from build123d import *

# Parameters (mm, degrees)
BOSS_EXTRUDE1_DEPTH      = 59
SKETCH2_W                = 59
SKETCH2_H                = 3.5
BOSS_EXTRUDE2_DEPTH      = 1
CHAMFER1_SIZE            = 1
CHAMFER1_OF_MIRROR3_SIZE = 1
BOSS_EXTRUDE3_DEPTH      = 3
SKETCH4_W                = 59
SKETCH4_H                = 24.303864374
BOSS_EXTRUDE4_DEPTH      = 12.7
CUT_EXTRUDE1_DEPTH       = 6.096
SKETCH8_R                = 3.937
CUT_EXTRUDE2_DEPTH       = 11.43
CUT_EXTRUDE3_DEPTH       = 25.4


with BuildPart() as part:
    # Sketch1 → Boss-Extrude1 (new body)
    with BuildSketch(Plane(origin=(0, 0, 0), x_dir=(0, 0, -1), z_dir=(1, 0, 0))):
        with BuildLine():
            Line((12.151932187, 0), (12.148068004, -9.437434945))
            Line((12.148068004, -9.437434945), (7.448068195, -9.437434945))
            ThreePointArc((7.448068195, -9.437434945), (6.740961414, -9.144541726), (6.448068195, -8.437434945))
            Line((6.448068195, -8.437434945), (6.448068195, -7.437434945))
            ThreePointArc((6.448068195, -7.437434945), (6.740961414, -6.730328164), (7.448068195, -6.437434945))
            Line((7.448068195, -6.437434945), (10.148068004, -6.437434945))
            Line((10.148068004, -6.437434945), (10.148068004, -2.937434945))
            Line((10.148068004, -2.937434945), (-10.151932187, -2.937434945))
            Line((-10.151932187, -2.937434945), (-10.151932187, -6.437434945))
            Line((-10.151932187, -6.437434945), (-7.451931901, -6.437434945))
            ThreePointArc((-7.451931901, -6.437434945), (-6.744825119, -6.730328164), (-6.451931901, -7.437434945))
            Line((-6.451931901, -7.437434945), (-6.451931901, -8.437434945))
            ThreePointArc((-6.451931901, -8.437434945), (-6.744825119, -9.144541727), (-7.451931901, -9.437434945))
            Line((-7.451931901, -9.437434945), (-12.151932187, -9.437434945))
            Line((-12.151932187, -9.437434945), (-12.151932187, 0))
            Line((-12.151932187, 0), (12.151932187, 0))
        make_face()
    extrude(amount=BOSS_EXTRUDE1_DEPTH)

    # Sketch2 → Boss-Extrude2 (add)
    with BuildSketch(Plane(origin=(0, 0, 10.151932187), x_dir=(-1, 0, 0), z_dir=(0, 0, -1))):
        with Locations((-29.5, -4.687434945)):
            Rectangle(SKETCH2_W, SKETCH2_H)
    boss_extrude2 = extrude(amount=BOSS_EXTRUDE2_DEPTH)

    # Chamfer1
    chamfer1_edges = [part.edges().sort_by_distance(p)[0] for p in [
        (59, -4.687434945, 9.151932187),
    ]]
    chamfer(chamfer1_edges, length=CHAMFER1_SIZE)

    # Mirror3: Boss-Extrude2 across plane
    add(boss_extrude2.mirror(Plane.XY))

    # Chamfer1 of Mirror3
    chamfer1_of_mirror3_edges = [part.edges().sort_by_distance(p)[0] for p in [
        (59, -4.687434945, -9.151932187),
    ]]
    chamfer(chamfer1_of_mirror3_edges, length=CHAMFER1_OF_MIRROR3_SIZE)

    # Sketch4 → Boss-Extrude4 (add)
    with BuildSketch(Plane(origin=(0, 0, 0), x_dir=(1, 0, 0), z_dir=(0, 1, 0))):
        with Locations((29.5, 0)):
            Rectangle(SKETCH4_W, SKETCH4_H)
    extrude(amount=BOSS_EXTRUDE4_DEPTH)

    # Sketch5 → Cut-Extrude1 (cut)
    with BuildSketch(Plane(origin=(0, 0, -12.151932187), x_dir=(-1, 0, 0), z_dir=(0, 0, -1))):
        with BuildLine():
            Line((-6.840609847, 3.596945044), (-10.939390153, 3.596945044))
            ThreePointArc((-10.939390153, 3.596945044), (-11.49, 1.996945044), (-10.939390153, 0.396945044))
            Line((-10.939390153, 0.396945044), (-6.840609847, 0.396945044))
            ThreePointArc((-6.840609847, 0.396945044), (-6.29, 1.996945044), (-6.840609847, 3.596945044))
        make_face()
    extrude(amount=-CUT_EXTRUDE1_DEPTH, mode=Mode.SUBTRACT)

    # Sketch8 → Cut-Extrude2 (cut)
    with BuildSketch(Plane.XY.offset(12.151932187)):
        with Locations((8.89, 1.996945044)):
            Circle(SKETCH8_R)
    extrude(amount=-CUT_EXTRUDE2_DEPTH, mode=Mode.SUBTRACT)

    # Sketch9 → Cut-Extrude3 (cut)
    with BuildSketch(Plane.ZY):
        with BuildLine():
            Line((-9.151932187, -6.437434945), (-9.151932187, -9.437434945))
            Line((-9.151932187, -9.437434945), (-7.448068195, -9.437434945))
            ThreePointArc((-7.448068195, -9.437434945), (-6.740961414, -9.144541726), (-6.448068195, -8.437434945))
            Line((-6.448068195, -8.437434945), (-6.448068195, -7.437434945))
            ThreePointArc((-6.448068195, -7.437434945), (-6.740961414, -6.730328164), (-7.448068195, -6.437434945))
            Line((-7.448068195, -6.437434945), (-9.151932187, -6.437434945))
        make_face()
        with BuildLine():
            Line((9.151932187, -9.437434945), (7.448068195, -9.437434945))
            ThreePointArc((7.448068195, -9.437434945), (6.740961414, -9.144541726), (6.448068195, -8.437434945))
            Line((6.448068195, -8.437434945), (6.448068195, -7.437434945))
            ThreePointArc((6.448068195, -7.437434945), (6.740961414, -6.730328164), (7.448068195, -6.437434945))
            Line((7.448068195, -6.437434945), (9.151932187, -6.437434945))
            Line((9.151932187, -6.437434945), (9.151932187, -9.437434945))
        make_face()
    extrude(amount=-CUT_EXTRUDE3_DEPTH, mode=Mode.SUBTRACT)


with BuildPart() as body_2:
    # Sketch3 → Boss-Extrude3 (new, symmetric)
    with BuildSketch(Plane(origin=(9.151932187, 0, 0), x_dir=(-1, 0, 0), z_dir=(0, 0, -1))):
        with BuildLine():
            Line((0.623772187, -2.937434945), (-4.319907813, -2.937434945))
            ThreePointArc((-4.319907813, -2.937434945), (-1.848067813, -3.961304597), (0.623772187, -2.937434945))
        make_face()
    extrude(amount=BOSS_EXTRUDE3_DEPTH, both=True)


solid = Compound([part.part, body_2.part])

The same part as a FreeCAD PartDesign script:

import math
import FreeCAD as App
import Part
import Sketcher

V = App.Vector


def edges_at(feature, points):
    """Names of the edges that pass closest to the given points."""
    edges = feature.Shape.Edges
    near = lambda p: min(range(len(edges)), key=lambda i: edges[i].distToShape(Part.Vertex(*p))[0])
    return sorted({f"Edge{near(p) + 1}" for p in points})

doc = App.newDocument("Part")
params = doc.addObject("Spreadsheet::Sheet", "Params")
for row, (alias, value) in enumerate([
    ("sketch1_radius", "1 mm"),
    ("sketch1_width", "1 mm"),
    ("sketch1_width2", "3.5 mm"),
    ("sketch1_height", "4.7 mm"),
    ("sketch1_height2", "2.7 mm"),
    ("pad1_length", "59 mm"),
    ("sketch2_width", "59 mm"),
    ("sketch2_height", "3.5 mm"),
    ("pad2_length", "1 mm"),
    ("chamfer_size", "1 mm"),
    ("chamfer2_size", "1 mm"),
    ("sketch3_width", "59 mm"),
    ("pad3_length", "12.7 mm"),
    ("sketch4_radius", "2.6 mm"),
    ("pocket1_length", "6.096 mm"),
    ("pocket2_length", "11.43 mm"),
    ("sketch6_radius", "1 mm"),
    ("sketch6_width", "3 mm"),
    ("pocket3_length", "25.4 mm"),
    ("pad4_length", "6 mm"),
], start=1):
    params.set(f"A{row}", alias)
    params.set(f"B{row}", "=" + value)
    params.setAlias(f"B{row}", alias)

body = doc.addObject("PartDesign::Body", "Body")

sketch1 = doc.addObject("Sketcher::SketchObject", "Sketch")
body.addObject(sketch1)
sketch1.AttachmentSupport = (doc.YZ_Plane, [""])
sketch1.MapMode = "FlatFace"
sketch1.addGeometry([
    Part.LineSegment(V(-9.437435, -12.148068, 0), V(0, -12.151932, 0)),
    Part.LineSegment(V(0, -12.151932, 0), V(0, 12.151932, 0)),
    Part.LineSegment(V(0, 12.151932, 0), V(-9.437435, 12.151932, 0)),
    Part.LineSegment(V(-9.437435, 12.151932, 0), V(-9.437435, 7.451932, 0)),
    Part.ArcOfCircle(Part.Circle(V(-8.437435, 7.451932, 0), V(0, 0, 1), 1), math.radians(180), math.radians(270)),
    Part.LineSegment(V(-8.437435, 6.451932, 0), V(-7.437435, 6.451932, 0)),
    Part.ArcOfCircle(Part.Circle(V(-7.437435, 7.451932, 0), V(0, 0, 1), 1), math.radians(-90), math.radians(0)),
    Part.LineSegment(V(-6.437435, 7.451932, 0), V(-6.437435, 10.151932, 0)),
    Part.LineSegment(V(-6.437435, 10.151932, 0), V(-2.937435, 10.151932, 0)),
    Part.LineSegment(V(-2.937435, 10.151932, 0), V(-2.937435, -10.148068, 0)),
    Part.LineSegment(V(-2.937435, -10.148068, 0), V(-6.437435, -10.148068, 0)),
    Part.LineSegment(V(-6.437435, -10.148068, 0), V(-6.437435, -7.448068, 0)),
    Part.ArcOfCircle(Part.Circle(V(-7.437435, -7.448068, 0), V(0, 0, 1), 1), math.radians(0), math.radians(90)),
    Part.LineSegment(V(-7.437435, -6.448068, 0), V(-8.437435, -6.448068, 0)),
    Part.ArcOfCircle(Part.Circle(V(-8.437435, -7.448068, 0), V(0, 0, 1), 1), math.radians(90), math.radians(180)),
    Part.LineSegment(V(-9.437435, -7.448068, 0), V(-9.437435, -12.148068, 0)),
], False)
sketch1.addConstraint([
    Sketcher.Constraint("Coincident", 0, 2, 1, 1),
    Sketcher.Constraint("Coincident", 1, 2, 2, 1),
    Sketcher.Constraint("Coincident", 2, 2, 3, 1),
    Sketcher.Constraint("Tangent", 3, 2, 4, 1),
    Sketcher.Constraint("Tangent", 4, 2, 5, 1),
    Sketcher.Constraint("Tangent", 5, 2, 6, 1),
    Sketcher.Constraint("Tangent", 6, 2, 7, 1),
    Sketcher.Constraint("Coincident", 7, 2, 8, 1),
    Sketcher.Constraint("Coincident", 8, 2, 9, 1),
    Sketcher.Constraint("Coincident", 9, 2, 10, 1),
    Sketcher.Constraint("Coincident", 10, 2, 11, 1),
    Sketcher.Constraint("Tangent", 11, 2, 12, 1),
    Sketcher.Constraint("Tangent", 12, 2, 13, 1),
    Sketcher.Constraint("Tangent", 13, 2, 14, 1),
    Sketcher.Constraint("Tangent", 14, 2, 15, 1),
    Sketcher.Constraint("Coincident", 15, 2, 0, 1),
    Sketcher.Constraint("Vertical", 1),
    Sketcher.Constraint("Horizontal", 2),
    Sketcher.Constraint("Vertical", 3),
    Sketcher.Constraint("Horizontal", 5),
    Sketcher.Constraint("Vertical", 7),
    Sketcher.Constraint("Horizontal", 8),
    Sketcher.Constraint("Vertical", 9),
    Sketcher.Constraint("Horizontal", 10),
    Sketcher.Constraint("Vertical", 11),
    Sketcher.Constraint("Horizontal", 13),
    Sketcher.Constraint("Vertical", 15),
    Sketcher.Constraint("Equal", 4, 6),
    Sketcher.Constraint("Equal", 6, 12),
    Sketcher.Constraint("Equal", 12, 14),
    Sketcher.Constraint("Symmetric", 0, 2, 1, 2, -1, 1),
    Sketcher.Constraint("Vertical", 6, 3, 12, 3),
    Sketcher.Constraint("Vertical", 4, 3, 14, 3),
    Sketcher.Constraint("Equal", 7, 11),
    Sketcher.Constraint("Equal", 3, 15),
    Sketcher.Constraint("Radius", 4, 1.0),
    Sketcher.Constraint("DistanceX", 5, 1, 5, 2, 1.0),
    Sketcher.Constraint("DistanceX", 8, 1, 8, 2, 3.5),
    Sketcher.Constraint("DistanceY", 3, 2, 3, 1, 4.7),
    Sketcher.Constraint("DistanceY", 7, 1, 7, 2, 2.7),
    Sketcher.Constraint("DistanceY", 9, 2, 9, 1, 20.3),
    Sketcher.Constraint("DistanceX", 2, 2, 2, 1, 9.437435),
    Sketcher.Constraint("DistanceY", 1, 1, 1, 2, 24.303864),
])
sketch1.setExpression("Constraints[35]", "Params.sketch1_radius")
sketch1.setExpression("Constraints[36]", "Params.sketch1_width")
sketch1.setExpression("Constraints[37]", "Params.sketch1_width2")
sketch1.setExpression("Constraints[38]", "Params.sketch1_height")
sketch1.setExpression("Constraints[39]", "Params.sketch1_height2")
pad1 = doc.addObject("PartDesign::Pad", "Pad")
body.addObject(pad1)
pad1.Profile = sketch1
pad1.setExpression("Length", "Params.pad1_length")

sketch2 = doc.addObject("Sketcher::SketchObject", "Sketch001")
body.addObject(sketch2)
sketch2.AttachmentSupport = (doc.XY_Plane, [""])
sketch2.MapMode = "FlatFace"
sketch2.AttachmentOffset = App.Placement(V(0, 0, 10.151932), App.Rotation())
sketch2.addGeometry([
    Part.LineSegment(V(59, -2.937435, 0), V(59, -6.437435, 0)),
    Part.LineSegment(V(59, -6.437435, 0), V(0, -6.437435, 0)),
    Part.LineSegment(V(0, -6.437435, 0), V(0, -2.937435, 0)),
    Part.LineSegment(V(0, -2.937435, 0), V(59, -2.937435, 0)),
], False)
sketch2.addConstraint([
    Sketcher.Constraint("Coincident", 0, 2, 1, 1),
    Sketcher.Constraint("Coincident", 1, 2, 2, 1),
    Sketcher.Constraint("Coincident", 2, 2, 3, 1),
    Sketcher.Constraint("Coincident", 3, 2, 0, 1),
    Sketcher.Constraint("Vertical", 0),
    Sketcher.Constraint("Horizontal", 1),
    Sketcher.Constraint("Vertical", 2),
    Sketcher.Constraint("Horizontal", 3),
    Sketcher.Constraint("PointOnObject", 1, 2, -2),
    Sketcher.Constraint("DistanceX", 1, 2, 1, 1, 59.0),
    Sketcher.Constraint("DistanceY", 0, 2, 0, 1, 3.5),
    Sketcher.Constraint("DistanceY", 0, 2, -1, 1, 6.437435),
])
sketch2.setExpression("Constraints[9]", "Params.sketch2_width")
sketch2.setExpression("Constraints[10]", "Params.sketch2_height")
pad2 = doc.addObject("PartDesign::Pad", "Pad001")
body.addObject(pad2)
pad2.Profile = sketch2
pad2.setExpression("Length", "Params.pad2_length")
pad2.Reversed = True
doc.recompute()

chamfer = doc.addObject("PartDesign::Chamfer", "Chamfer")
body.addObject(chamfer)
chamfer.Base = (pad2, edges_at(pad2, [(59, -4.687, 9.152)]))
chamfer.setExpression("Size", "Params.chamfer_size")
doc.recompute()

mirrored = doc.addObject("PartDesign::Mirrored", "Mirrored")
body.addObject(mirrored)
mirrored.Originals = [pad2]
mirrored.MirrorPlane = (doc.XY_Plane, [""])
body.Tip = mirrored
doc.recompute()

chamfer2 = doc.addObject("PartDesign::Chamfer", "Chamfer001")
body.addObject(chamfer2)
chamfer2.Base = (mirrored, edges_at(mirrored, [(59, -4.687, -9.152)]))
chamfer2.setExpression("Size", "Params.chamfer2_size")

sketch3 = doc.addObject("Sketcher::SketchObject", "Sketch002")
body.addObject(sketch3)
sketch3.AttachmentSupport = (doc.XZ_Plane, [""])
sketch3.MapMode = "FlatFace"
sketch3.addGeometry([
    Part.LineSegment(V(0, -12.151932, 0), V(0, 12.151932, 0)),
    Part.LineSegment(V(0, 12.151932, 0), V(59, 12.151932, 0)),
    Part.LineSegment(V(59, 12.151932, 0), V(59, -12.151932, 0)),
    Part.LineSegment(V(59, -12.151932, 0), V(0, -12.151932, 0)),
], False)
sketch3.addConstraint([
    Sketcher.Constraint("Coincident", 0, 2, 1, 1),
    Sketcher.Constraint("Coincident", 1, 2, 2, 1),
    Sketcher.Constraint("Coincident", 2, 2, 3, 1),
    Sketcher.Constraint("Coincident", 3, 2, 0, 1),
    Sketcher.Constraint("Vertical", 0),
    Sketcher.Constraint("Horizontal", 1),
    Sketcher.Constraint("Vertical", 2),
    Sketcher.Constraint("Horizontal", 3),
    Sketcher.Constraint("Symmetric", 0, 2, 3, 2, -1, 1),
    Sketcher.Constraint("DistanceX", 1, 1, 1, 2, 59.0),
    Sketcher.Constraint("DistanceY", 0, 1, 0, 2, 24.303864),
])
sketch3.setExpression("Constraints[9]", "Params.sketch3_width")
pad3 = doc.addObject("PartDesign::Pad", "Pad002")
body.addObject(pad3)
pad3.Profile = sketch3
pad3.setExpression("Length", "Params.pad3_length")
pad3.Reversed = True

sketch4 = doc.addObject("Sketcher::SketchObject", "Sketch003")
body.addObject(sketch4)
sketch4.AttachmentSupport = (doc.XY_Plane, [""])
sketch4.MapMode = "FlatFace"
sketch4.AttachmentOffset = App.Placement(V(0, 0, -12.151932), App.Rotation())
sketch4.addGeometry([
    Part.LineSegment(V(6.84061, 3.596945, 0), V(10.93939, 3.596945, 0)),
    Part.ArcOfCircle(Part.Circle(V(8.89, 1.996945, 0), V(0, 0, 1), 2.6), math.radians(-37.979872), math.radians(37.979872)),
    Part.LineSegment(V(10.93939, 0.396945, 0), V(6.84061, 0.396945, 0)),
    Part.ArcOfCircle(Part.Circle(V(8.89, 1.996945, 0), V(0, 0, 1), 2.6), math.radians(142.020128), math.radians(217.979872)),
], False)
sketch4.addConstraint([
    Sketcher.Constraint("Coincident", 0, 2, 1, 2),
    Sketcher.Constraint("Coincident", 1, 1, 2, 1),
    Sketcher.Constraint("Coincident", 2, 2, 3, 2),
    Sketcher.Constraint("Coincident", 3, 1, 0, 1),
    Sketcher.Constraint("Horizontal", 0),
    Sketcher.Constraint("Horizontal", 2),
    Sketcher.Constraint("Coincident", 3, 3, 1, 3),
    Sketcher.Constraint("Equal", 1, 3),
    Sketcher.Constraint("Vertical", 0, 2, 1, 1),
    Sketcher.Constraint("Radius", 1, 2.6),
    Sketcher.Constraint("DistanceY", 1, 3, 0, 2, 1.6),
    Sketcher.Constraint("DistanceX", -1, 1, 1, 3, 8.89),
    Sketcher.Constraint("DistanceY", -1, 1, 1, 3, 1.996945),
])
sketch4.setExpression("Constraints[9]", "Params.sketch4_radius")
pocket1 = doc.addObject("PartDesign::Pocket", "Pocket")
body.addObject(pocket1)
pocket1.Profile = sketch4
pocket1.setExpression("Length", "Params.pocket1_length")
pocket1.Reversed = True

sketch5 = doc.addObject("Sketcher::SketchObject", "Sketch004")
body.addObject(sketch5)
sketch5.AttachmentSupport = (doc.XY_Plane, [""])
sketch5.MapMode = "FlatFace"
sketch5.AttachmentOffset = App.Placement(V(0, 0, 12.151932), App.Rotation())
sketch5.addGeometry(Part.Circle(V(8.89, 1.996945, 0), V(0, 0, 1), 3.937), False)
sketch5.addConstraint([
    Sketcher.Constraint("Diameter", 0, 7.874),
    Sketcher.Constraint("DistanceX", -1, 1, 0, 3, 8.89),
    Sketcher.Constraint("DistanceY", -1, 1, 0, 3, 1.996945),
])
pocket2 = doc.addObject("PartDesign::Pocket", "Pocket001")
body.addObject(pocket2)
pocket2.Profile = sketch5
pocket2.setExpression("Length", "Params.pocket2_length")

sketch6 = doc.addObject("Sketcher::SketchObject", "Sketch005")
body.addObject(sketch6)
sketch6.AttachmentSupport = (doc.YZ_Plane, [""])
sketch6.MapMode = "FlatFace"
sketch6.addGeometry([
    Part.LineSegment(V(-6.437435, -9.151932, 0), V(-9.437435, -9.151932, 0)),
    Part.LineSegment(V(-9.437435, -9.151932, 0), V(-9.437435, -7.448068, 0)),
    Part.ArcOfCircle(Part.Circle(V(-8.437435, -7.448068, 0), V(0, 0, 1), 1), math.radians(90), math.radians(180)),
    Part.LineSegment(V(-8.437435, -6.448068, 0), V(-7.437435, -6.448068, 0)),
    Part.ArcOfCircle(Part.Circle(V(-7.437435, -7.448068, 0), V(0, 0, 1), 1), math.radians(0), math.radians(90)),
    Part.LineSegment(V(-6.437435, -7.448068, 0), V(-6.437435, -9.151932, 0)),
    Part.LineSegment(V(-9.437435, 7.448068, 0), V(-9.437435, 9.151932, 0)),
    Part.LineSegment(V(-9.437435, 9.151932, 0), V(-6.437435, 9.151932, 0)),
    Part.LineSegment(V(-6.437435, 9.151932, 0), V(-6.437435, 7.448068, 0)),
    Part.ArcOfCircle(Part.Circle(V(-7.437435, 7.448068, 0), V(0, 0, 1), 1), math.radians(-90), math.radians(0)),
    Part.LineSegment(V(-7.437435, 6.448068, 0), V(-8.437435, 6.448068, 0)),
    Part.ArcOfCircle(Part.Circle(V(-8.437435, 7.448068, 0), V(0, 0, 1), 1), math.radians(-180), math.radians(-90)),
], False)
sketch6.addConstraint([
    Sketcher.Constraint("Coincident", 0, 2, 1, 1),
    Sketcher.Constraint("Tangent", 1, 2, 2, 2),
    Sketcher.Constraint("Tangent", 2, 1, 3, 1),
    Sketcher.Constraint("Tangent", 3, 2, 4, 2),
    Sketcher.Constraint("Tangent", 4, 1, 5, 1),
    Sketcher.Constraint("Coincident", 5, 2, 0, 1),
    Sketcher.Constraint("Coincident", 6, 2, 7, 1),
    Sketcher.Constraint("Coincident", 7, 2, 8, 1),
    Sketcher.Constraint("Tangent", 8, 2, 9, 2),
    Sketcher.Constraint("Tangent", 9, 1, 10, 1),
    Sketcher.Constraint("Tangent", 10, 2, 11, 2),
    Sketcher.Constraint("Tangent", 11, 1, 6, 1),
    Sketcher.Constraint("Horizontal", 0),
    Sketcher.Constraint("Vertical", 1),
    Sketcher.Constraint("Horizontal", 3),
    Sketcher.Constraint("Vertical", 5),
    Sketcher.Constraint("Vertical", 6),
    Sketcher.Constraint("Horizontal", 7),
    Sketcher.Constraint("Vertical", 8),
    Sketcher.Constraint("Horizontal", 10),
    Sketcher.Constraint("Equal", 2, 4),
    Sketcher.Constraint("Equal", 4, 9),
    Sketcher.Constraint("Equal", 9, 11),
    Sketcher.Constraint("Symmetric", 4, 3, 9, 3, -1),
    Sketcher.Constraint("Symmetric", 0, 2, 6, 2, -1),
    Sketcher.Constraint("Radius", 2, 1.0),
    Sketcher.Constraint("DistanceX", 0, 2, 0, 1, 3.0),
    Sketcher.Constraint("DistanceY", 0, 2, 11, 3, 16.6),
    Sketcher.Constraint("DistanceY", 1, 1, 1, 2, 1.703864),
    Sketcher.Constraint("DistanceX", 2, 3, -1, 1, 8.437435),
])
sketch6.setExpression("Constraints[25]", "Params.sketch6_radius")
sketch6.setExpression("Constraints[26]", "Params.sketch6_width")
pocket3 = doc.addObject("PartDesign::Pocket", "Pocket002")
body.addObject(pocket3)
pocket3.Profile = sketch6
pocket3.setExpression("Length", "Params.pocket3_length")
pocket3.Reversed = True
body2 = doc.addObject("PartDesign::Body", "Body001")

sketch7 = doc.addObject("Sketcher::SketchObject", "Sketch006")
body2.addObject(sketch7)
sketch7.AttachmentSupport = (doc.getObject("XY_Plane001"), [""])
sketch7.MapMode = "FlatFace"
sketch7.addGeometry([
    Part.LineSegment(V(8.52816, -2.937435, 0), V(13.47184, -2.937435, 0)),
    Part.ArcOfCircle(Part.Circle(V(11, -0.465595, 0), V(0, 0, 1), 3.49571), math.radians(-135), math.radians(-45)),
], False)
sketch7.addConstraint([
    Sketcher.Constraint("Coincident", 0, 1, 1, 1),
    Sketcher.Constraint("Coincident", 1, 2, 0, 2),
    Sketcher.Constraint("Horizontal", 0),
    Sketcher.Constraint("DistanceX", -1, 1, 1, 3, 11.0),
    Sketcher.Constraint("Radius", 1, 3.49571),
    Sketcher.Constraint("DistanceX", 0, 1, 0, 2, 4.94368),
    Sketcher.Constraint("DistanceY", 1, 3, -1, 1, 0.465595),
])
pad4 = doc.addObject("PartDesign::Pad", "Pad003")
body2.addObject(pad4)
pad4.Profile = sketch7
pad4.setExpression("Length", "Params.pad4_length")
pad4.Midplane = True

doc.recompute()
